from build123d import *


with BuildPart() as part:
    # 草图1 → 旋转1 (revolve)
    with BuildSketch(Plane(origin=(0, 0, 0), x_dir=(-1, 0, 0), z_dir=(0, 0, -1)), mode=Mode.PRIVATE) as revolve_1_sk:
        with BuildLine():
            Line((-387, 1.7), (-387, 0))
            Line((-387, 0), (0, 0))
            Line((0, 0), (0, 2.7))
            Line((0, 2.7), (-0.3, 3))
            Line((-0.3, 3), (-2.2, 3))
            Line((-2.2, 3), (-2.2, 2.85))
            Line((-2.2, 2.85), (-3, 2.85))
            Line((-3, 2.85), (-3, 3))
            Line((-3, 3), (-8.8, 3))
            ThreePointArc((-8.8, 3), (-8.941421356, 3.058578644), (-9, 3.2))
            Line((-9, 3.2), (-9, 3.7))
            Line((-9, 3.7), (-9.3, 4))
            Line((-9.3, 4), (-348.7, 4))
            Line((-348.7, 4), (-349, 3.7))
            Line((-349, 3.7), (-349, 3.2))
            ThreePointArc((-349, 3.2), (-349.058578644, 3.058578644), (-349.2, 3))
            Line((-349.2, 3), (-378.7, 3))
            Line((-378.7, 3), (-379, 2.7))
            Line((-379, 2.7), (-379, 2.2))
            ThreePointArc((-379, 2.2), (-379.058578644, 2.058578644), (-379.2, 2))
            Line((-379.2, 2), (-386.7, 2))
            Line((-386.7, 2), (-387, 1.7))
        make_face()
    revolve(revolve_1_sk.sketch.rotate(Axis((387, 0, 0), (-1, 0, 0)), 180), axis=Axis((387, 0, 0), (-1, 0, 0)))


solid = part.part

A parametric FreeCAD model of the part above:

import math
import FreeCAD as App
import Part
import Sketcher

doc = App.newDocument("Part")
body = doc.addObject("PartDesign::Body", "Body")

sketch1 = doc.addObject("Sketcher::SketchObject", "Sketch")
body.addObject(sketch1)
sketch1.AttachmentSupport = (doc.XY_Plane, [""])
sketch1.MapMode = "FlatFace"
sketch1.addGeometry([
    Part.LineSegment(App.Vector(387, 1.7, 0), App.Vector(387, 0, 0)),
    Part.LineSegment(App.Vector(387, 0, 0), App.Vector(0, 0, 0)),
    Part.LineSegment(App.Vector(0, 0, 0), App.Vector(0, 2.7, 0)),
    Part.LineSegment(App.Vector(0, 2.7, 0), App.Vector(0.3, 3, 0)),
    Part.LineSegment(App.Vector(0.3, 3, 0), App.Vector(2.2, 3, 0)),
    Part.LineSegment(App.Vector(2.2, 3, 0), App.Vector(2.2, 2.85, 0)),
    Part.LineSegment(App.Vector(2.2, 2.85, 0), App.Vector(3, 2.85, 0)),
    Part.LineSegment(App.Vector(3, 2.85, 0), App.Vector(3, 3, 0)),
    Part.LineSegment(App.Vector(3, 3, 0), App.Vector(8.8, 3, 0)),
    Part.ArcOfCircle(Part.Circle(App.Vector(8.8, 3.2, 0), App.Vector(0, 0, 1), 0.2), math.radians(-90), math.radians(0)),
    Part.LineSegment(App.Vector(9, 3.2, 0), App.Vector(9, 3.7, 0)),
    Part.LineSegment(App.Vector(9, 3.7, 0), App.Vector(9.3, 4, 0)),
    Part.LineSegment(App.Vector(9.3, 4, 0), App.Vector(348.7, 4, 0)),
    Part.LineSegment(App.Vector(348.7, 4, 0), App.Vector(349, 3.7, 0)),
    Part.LineSegment(App.Vector(349, 3.7, 0), App.Vector(349, 3.2, 0)),
    Part.ArcOfCircle(Part.Circle(App.Vector(349.2, 3.2, 0), App.Vector(0, 0, 1), 0.2), math.radians(-180), math.radians(-90)),
    Part.LineSegment(App.Vector(349.2, 3, 0), App.Vector(378.7, 3, 0)),
    Part.LineSegment(App.Vector(378.7, 3, 0), App.Vector(379, 2.7, 0)),
    Part.LineSegment(App.Vector(379, 2.7, 0), App.Vector(379, 2.2, 0)),
    Part.ArcOfCircle(Part.Circle(App.Vector(379.2, 2.2, 0), App.Vector(0, 0, 1), 0.2), math.radians(-180), math.radians(-90)),
    Part.LineSegment(App.Vector(379.2, 2, 0), App.Vector(386.7, 2, 0)),
    Part.LineSegment(App.Vector(386.7, 2, 0), App.Vector(387, 1.7, 0)),
], False)
sketch1.addConstraint([
    Sketcher.Constraint("Coincident", 0, 2, 1, 1),
    Sketcher.Constraint("Coincident", 1, 2, 2, 1),
    Sketcher.Constraint("Coincident", 2, 2, 3, 1),
    Sketcher.Constraint("Coincident", 3, 2, 4, 1),
    Sketcher.Constraint("Coincident", 4, 2, 5, 1),
    Sketcher.Constraint("Coincident", 5, 2, 6, 1),
    Sketcher.Constraint("Coincident", 6, 2, 7, 1),
    Sketcher.Constraint("Coincident", 7, 2, 8, 1),
    Sketcher.Constraint("Tangent", 8, 2, 9, 1),
    Sketcher.Constraint("Tangent", 9, 2, 10, 1),
    Sketcher.Constraint("Coincident", 10, 2, 11, 1),
    Sketcher.Constraint("Coincident", 11, 2, 12, 1),
    Sketcher.Constraint("Coincident", 12, 2, 13, 1),
    Sketcher.Constraint("Coincident", 13, 2, 14, 1),
    Sketcher.Constraint("Tangent", 14, 2, 15, 1),
    Sketcher.Constraint("Tangent", 15, 2, 16, 1),
    Sketcher.Constraint("Coincident", 16, 2, 17, 1),
    Sketcher.Constraint("Coincident", 17, 2, 18, 1),
    Sketcher.Constraint("Tangent", 18, 2, 19, 1),
    Sketcher.Constraint("Tangent", 19, 2, 20, 1),
    Sketcher.Constraint("Coincident", 20, 2, 21, 1),
    Sketcher.Constraint("Coincident", 21, 2, 0, 1),
    Sketcher.Constraint("Vertical", 0),
    Sketcher.Constraint("Horizontal", 1),
    Sketcher.Constraint("Vertical", 2),
    Sketcher.Constraint("Horizontal", 4),
    Sketcher.Constraint("Vertical", 5),
    Sketcher.Constraint("Horizontal", 6),
    Sketcher.Constraint("Vertical", 7),
    Sketcher.Constraint("Horizontal", 8),
    Sketcher.Constraint("Vertical", 10),
    Sketcher.Constraint("Horizontal", 12),
    Sketcher.Constraint("Vertical", 14),
    Sketcher.Constraint("Horizontal", 16),
    Sketcher.Constraint("Vertical", 18),
    Sketcher.Constraint("Horizontal", 20),
    Sketcher.Constraint("Coincident", 1, 2, -1, 1),
    Sketcher.Constraint("Equal", 9, 15),
    Sketcher.Constraint("Equal", 15, 19),
    Sketcher.Constraint("Parallel", 3, 11),
    Sketcher.Constraint("Perpendicular", 11, 13),
    Sketcher.Constraint("Parallel", 13, 17),
    Sketcher.Constraint("Parallel", 17, 21),
    Sketcher.Constraint("Horizontal", 9, 3, 15, 3),
    Sketcher.Constraint("Horizontal", 4, 2, 7, 2),
    Sketcher.Constraint("Horizontal", 10, 2, 13, 2),
    Sketcher.Constraint("Horizontal", 2, 2, 17, 2),
    Sketcher.Constraint("Equal", 14, 18),
    Sketcher.Constraint("Equal", 3, 11),
    Sketcher.Constraint("Equal", 11, 13),
    Sketcher.Constraint("Equal", 17, 21),
    Sketcher.Constraint("Radius", 9, 0.2),
    Sketcher.Constraint("DistanceX", 1, 2, 1, 1, 387.0),
    Sketcher.Constraint("DistanceX", 4, 1, 4, 2, 1.9),
    Sketcher.Constraint("DistanceX", 6, 1, 6, 2, 0.8),
    Sketcher.Constraint("DistanceX", 8, 1, 8, 2, 5.8),
    Sketcher.Constraint("DistanceX", 12, 1, 12, 2, 339.4),
    Sketcher.Constraint("DistanceX", 16, 1, 16, 2, 29.5),
    Sketcher.Constraint("DistanceX", 20, 1, 20, 2, 7.5),
    Sketcher.Constraint("DistanceY", 0, 2, 0, 1, 1.7),
    Sketcher.Constraint("DistanceY", 2, 1, 2, 2, 2.7),
    Sketcher.Constraint("DistanceY", 5, 2, 5, 1, 0.15),
])
revolution = doc.addObject("PartDesign::Revolution", "Revolution")
body.addObject(revolution)
revolution.Profile = sketch1
revolution.ReferenceAxis = (sketch1, ["H_Axis"])
revolution.Angle = 360

doc.recompute()
